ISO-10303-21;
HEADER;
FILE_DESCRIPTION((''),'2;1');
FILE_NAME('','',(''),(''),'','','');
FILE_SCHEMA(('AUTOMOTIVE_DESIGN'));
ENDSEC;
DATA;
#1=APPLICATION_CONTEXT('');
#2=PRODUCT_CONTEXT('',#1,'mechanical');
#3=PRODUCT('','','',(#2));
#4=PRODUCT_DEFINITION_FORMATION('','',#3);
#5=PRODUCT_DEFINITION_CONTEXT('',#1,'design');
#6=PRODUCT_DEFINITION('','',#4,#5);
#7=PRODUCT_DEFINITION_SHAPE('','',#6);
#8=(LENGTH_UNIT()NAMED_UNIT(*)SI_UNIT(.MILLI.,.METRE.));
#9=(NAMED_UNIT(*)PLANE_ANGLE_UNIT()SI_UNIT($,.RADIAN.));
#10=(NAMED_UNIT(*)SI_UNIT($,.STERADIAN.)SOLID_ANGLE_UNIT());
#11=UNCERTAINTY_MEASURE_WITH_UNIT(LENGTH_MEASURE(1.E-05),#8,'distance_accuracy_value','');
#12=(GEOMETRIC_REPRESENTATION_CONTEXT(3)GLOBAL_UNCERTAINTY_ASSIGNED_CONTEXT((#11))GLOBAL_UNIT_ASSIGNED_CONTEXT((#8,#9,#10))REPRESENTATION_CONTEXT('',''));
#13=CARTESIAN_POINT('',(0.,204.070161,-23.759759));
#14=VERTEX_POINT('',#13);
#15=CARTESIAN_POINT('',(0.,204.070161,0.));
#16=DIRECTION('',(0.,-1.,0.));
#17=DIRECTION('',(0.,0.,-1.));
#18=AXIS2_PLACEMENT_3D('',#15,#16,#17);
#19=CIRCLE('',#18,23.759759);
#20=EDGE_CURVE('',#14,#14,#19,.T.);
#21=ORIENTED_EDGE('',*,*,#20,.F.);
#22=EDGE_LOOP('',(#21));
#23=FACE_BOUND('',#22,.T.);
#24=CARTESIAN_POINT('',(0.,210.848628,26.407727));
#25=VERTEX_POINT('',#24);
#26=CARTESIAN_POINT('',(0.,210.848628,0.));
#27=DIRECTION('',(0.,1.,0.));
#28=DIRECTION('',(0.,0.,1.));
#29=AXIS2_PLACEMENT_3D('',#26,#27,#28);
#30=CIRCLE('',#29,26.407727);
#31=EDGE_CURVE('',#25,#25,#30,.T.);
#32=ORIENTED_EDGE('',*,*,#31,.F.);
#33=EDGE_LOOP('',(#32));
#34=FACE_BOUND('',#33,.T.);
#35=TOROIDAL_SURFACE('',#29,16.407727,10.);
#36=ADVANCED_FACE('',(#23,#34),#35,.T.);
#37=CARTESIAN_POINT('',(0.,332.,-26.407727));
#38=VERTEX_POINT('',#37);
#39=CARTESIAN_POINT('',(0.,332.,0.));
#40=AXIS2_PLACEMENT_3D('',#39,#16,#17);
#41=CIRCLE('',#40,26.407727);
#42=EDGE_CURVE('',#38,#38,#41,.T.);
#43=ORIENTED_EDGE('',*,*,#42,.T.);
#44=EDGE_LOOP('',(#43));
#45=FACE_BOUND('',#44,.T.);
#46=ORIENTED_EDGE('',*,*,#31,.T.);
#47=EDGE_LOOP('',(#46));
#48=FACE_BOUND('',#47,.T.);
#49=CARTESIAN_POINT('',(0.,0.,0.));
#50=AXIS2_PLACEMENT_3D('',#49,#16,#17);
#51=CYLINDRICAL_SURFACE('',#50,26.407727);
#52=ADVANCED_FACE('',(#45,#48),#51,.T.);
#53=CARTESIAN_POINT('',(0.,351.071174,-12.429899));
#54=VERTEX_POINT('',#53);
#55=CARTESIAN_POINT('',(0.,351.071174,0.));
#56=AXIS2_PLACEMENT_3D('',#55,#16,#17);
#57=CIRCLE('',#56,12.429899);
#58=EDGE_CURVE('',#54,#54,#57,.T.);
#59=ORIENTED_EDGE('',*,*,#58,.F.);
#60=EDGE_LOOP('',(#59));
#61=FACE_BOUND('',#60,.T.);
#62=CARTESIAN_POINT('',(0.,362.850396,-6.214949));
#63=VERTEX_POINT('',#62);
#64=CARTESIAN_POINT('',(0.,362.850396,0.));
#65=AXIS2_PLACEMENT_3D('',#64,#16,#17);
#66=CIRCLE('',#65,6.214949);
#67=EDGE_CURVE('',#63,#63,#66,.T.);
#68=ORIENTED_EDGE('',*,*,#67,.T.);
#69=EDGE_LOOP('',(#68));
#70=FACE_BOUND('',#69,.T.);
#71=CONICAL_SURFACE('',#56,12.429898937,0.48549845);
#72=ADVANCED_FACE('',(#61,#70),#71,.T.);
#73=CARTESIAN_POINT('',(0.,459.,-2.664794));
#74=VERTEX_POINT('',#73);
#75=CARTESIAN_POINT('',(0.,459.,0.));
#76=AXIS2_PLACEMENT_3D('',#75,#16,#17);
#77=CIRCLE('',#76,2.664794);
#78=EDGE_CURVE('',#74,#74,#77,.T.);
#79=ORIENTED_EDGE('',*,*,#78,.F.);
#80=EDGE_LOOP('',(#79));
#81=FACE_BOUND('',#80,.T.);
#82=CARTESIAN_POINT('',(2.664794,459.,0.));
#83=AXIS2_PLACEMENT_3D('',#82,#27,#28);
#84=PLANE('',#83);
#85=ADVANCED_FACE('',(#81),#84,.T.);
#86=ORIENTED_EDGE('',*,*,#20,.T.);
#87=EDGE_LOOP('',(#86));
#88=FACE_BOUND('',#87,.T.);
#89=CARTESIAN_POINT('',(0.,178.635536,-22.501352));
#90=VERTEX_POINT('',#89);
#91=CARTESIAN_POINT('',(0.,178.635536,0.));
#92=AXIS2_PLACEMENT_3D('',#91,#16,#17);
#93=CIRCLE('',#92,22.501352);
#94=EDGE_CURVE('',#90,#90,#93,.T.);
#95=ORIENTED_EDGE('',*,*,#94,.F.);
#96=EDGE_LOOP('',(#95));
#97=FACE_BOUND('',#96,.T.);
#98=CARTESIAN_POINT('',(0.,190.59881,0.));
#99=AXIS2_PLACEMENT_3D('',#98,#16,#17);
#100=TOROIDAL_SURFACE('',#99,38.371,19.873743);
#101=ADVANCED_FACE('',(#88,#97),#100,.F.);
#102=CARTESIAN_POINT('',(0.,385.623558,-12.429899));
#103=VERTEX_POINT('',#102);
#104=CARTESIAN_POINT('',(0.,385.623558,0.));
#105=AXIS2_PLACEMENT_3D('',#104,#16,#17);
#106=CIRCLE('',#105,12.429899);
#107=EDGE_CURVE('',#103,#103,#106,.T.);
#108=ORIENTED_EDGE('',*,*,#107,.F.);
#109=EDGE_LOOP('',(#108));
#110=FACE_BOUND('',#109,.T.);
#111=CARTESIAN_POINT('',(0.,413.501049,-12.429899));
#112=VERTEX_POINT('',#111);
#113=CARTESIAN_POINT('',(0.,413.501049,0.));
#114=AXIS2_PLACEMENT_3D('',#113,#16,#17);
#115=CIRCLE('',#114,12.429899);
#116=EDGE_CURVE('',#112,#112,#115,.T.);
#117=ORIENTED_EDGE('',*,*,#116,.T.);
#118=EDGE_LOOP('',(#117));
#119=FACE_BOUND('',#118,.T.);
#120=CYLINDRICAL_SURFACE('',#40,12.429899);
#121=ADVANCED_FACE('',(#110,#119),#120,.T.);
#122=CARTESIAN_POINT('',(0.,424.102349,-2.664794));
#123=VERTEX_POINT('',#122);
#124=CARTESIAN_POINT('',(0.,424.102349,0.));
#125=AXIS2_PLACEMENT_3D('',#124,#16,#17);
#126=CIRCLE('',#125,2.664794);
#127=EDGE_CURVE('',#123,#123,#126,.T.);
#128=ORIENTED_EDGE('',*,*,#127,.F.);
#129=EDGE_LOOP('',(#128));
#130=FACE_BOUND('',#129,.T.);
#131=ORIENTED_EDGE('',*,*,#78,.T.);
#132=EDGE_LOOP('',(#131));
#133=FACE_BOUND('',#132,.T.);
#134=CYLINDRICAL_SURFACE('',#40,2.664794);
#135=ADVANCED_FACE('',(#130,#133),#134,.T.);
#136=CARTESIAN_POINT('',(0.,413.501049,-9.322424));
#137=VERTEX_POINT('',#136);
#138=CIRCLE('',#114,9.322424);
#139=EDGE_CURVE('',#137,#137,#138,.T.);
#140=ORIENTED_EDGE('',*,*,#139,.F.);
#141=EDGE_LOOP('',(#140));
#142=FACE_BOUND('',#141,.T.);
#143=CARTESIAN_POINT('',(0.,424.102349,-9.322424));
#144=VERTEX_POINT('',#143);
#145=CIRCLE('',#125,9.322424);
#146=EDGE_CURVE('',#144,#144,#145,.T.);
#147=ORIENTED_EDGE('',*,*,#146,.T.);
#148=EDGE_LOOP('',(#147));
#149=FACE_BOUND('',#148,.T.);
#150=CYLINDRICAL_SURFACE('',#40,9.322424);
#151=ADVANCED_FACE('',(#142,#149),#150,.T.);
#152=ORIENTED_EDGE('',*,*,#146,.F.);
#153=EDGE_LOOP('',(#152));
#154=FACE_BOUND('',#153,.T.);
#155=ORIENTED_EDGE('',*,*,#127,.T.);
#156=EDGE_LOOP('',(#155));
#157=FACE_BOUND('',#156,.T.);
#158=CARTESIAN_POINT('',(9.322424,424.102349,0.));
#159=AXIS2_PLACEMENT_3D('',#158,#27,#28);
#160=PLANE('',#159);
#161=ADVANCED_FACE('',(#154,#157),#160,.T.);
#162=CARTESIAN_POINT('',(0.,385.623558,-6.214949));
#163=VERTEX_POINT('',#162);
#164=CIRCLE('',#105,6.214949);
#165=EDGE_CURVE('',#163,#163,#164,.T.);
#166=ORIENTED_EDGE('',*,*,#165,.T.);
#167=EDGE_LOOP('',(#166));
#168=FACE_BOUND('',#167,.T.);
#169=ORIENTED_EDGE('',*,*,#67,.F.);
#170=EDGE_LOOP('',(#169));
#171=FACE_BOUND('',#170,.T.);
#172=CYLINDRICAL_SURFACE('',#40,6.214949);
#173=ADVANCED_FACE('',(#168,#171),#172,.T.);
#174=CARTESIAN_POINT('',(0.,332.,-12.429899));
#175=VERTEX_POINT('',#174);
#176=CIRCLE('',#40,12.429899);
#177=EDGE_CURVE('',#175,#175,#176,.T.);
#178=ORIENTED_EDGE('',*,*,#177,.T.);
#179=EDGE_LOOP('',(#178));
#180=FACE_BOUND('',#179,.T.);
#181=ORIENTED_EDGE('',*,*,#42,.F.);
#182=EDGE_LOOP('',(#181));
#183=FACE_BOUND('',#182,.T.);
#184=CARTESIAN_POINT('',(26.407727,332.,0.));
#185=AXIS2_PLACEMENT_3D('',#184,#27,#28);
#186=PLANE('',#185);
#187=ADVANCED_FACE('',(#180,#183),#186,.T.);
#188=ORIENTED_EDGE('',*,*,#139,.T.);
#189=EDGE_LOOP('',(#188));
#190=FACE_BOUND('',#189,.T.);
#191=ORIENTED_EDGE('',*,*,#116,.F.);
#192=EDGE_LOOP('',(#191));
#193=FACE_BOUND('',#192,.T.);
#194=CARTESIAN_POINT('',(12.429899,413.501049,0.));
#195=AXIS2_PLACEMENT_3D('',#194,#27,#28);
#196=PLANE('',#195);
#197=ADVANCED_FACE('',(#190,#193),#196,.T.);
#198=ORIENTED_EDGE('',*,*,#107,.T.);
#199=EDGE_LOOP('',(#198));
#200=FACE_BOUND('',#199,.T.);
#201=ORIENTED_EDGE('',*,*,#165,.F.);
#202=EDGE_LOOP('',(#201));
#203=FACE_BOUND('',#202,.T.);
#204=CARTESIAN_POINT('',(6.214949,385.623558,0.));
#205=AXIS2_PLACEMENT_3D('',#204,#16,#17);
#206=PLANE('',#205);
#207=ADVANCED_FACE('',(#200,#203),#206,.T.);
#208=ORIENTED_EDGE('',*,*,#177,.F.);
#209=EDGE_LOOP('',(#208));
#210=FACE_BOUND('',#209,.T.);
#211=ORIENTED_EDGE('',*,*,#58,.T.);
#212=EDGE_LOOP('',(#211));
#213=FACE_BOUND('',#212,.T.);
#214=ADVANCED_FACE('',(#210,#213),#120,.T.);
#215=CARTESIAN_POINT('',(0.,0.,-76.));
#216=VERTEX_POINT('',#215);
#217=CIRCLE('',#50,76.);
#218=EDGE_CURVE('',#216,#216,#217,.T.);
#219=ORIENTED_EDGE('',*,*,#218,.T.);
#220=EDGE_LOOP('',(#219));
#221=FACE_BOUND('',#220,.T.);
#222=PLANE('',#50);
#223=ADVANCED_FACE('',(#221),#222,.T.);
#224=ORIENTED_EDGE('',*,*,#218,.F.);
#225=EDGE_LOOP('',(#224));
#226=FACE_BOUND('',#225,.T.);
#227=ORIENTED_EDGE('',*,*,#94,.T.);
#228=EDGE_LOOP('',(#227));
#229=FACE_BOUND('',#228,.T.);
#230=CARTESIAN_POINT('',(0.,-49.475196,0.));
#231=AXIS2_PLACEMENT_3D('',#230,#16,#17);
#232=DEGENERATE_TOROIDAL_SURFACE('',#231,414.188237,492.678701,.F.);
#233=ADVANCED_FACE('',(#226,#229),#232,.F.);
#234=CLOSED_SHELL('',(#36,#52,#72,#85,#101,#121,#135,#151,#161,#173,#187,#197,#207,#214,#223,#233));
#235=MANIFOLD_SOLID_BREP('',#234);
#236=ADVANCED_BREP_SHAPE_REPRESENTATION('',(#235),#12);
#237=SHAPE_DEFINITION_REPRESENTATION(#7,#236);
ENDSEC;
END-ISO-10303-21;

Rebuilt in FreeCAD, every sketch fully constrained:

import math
import FreeCAD as App
import Part
import Sketcher
from FreeCAD import Vector


def edges_at(feature, points):
    """Names of the edges that pass closest to the given points."""
    edges = feature.Shape.Edges
    near = lambda p: min(range(len(edges)), key=lambda i: edges[i].distToShape(Part.Vertex(*p))[0])
    return sorted({f"Edge{near(p) + 1}" for p in points})


def add_polygon(sketch, points):
    """Adds a closed chain of lines whose ends are joined by coincident constraints."""
    first, n = sketch.GeometryCount, len(points)
    for a, b in zip(points, points[1:] + points[:1]):
        sketch.addGeometry(Part.LineSegment(App.Vector(*a, 0), App.Vector(*b, 0)), False)
    for i in range(n):
        sketch.addConstraint(Sketcher.Constraint("Coincident", first + i, 2, first + (i + 1) % n, 1))

doc = App.newDocument("Part")
body = doc.addObject("PartDesign::Body", "Body")

sketch1 = body.newObject("Sketcher::SketchObject", "Sketch")
sketch1.AttachmentSupport = (doc.getObject("XY_Plane"), [""])
sketch1.MapMode = "FlatFace"
sketch1.addGeometry([
    Part.LineSegment(Vector(0, 0, 0), Vector(76, 0, 0)),
    Part.ArcOfCircle(Part.Circle(Vector(-414, -49, 0), Vector(0, 0, 1), 493), math.radians(6), math.radians(28)),
    Part.ArcOfCircle(Part.Circle(Vector(38, 191, 0), Vector(0, 0, 1), 20), math.radians(127), math.radians(217)),
    Part.LineSegment(Vector(26, 206, 0), Vector(26, 332, 0)),
    Part.LineSegment(Vector(26, 332, 0), Vector(0, 332, 0)),
    Part.LineSegment(Vector(0, 332, 0), Vector(0, 0, 0)),
], False)
sketch1.addConstraint([
    Sketcher.Constraint("Coincident", 0, 2, 1, 1),
    Sketcher.Constraint("Coincident", 1, 2, 2, 2),
    Sketcher.Constraint("Coincident", 2, 1, 3, 1),
    Sketcher.Constraint("Coincident", 3, 2, 4, 1),
    Sketcher.Constraint("Coincident", 4, 2, 5, 1),
    Sketcher.Constraint("Coincident", 5, 2, 0, 1),
    Sketcher.Constraint("Horizontal", 0),
    Sketcher.Constraint("Vertical", 3),
    Sketcher.Constraint("Horizontal", 4),
    Sketcher.Constraint("Vertical", 5),
    Sketcher.Constraint("Coincident", 5, 2, -1, 1),
    Sketcher.Constraint("DistanceX", 0, 1, 0, 2, 76.0),
    Sketcher.Constraint("DistanceY", 5, 2, 5, 1, 332.0),
    Sketcher.Constraint("Radius", 1, 492.678701),
    Sketcher.Constraint("DistanceX", -1, 1, 2, 3, 38.371),
    Sketcher.Constraint("Radius", 2, 19.873743),
    Sketcher.Constraint("DistanceY", 3, 1, 3, 2, 125.531542),
    Sketcher.Constraint("DistanceX", 4, 2, 4, 1, 26.407727),
    Sketcher.Constraint("DistanceX", -1, 1, 1, 2, 22.501352),
])
revolution = body.newObject("PartDesign::Revolution", "Revolution")
revolution.Profile = sketch1
revolution.ReferenceAxis = (sketch1, ["V_Axis"])
revolution.Angle = 360
doc.recompute()

fillet = body.newObject("PartDesign::Fillet", "Fillet")
fillet.Base = (revolution, edges_at(revolution, [(-26.408, 206.468, 0)]))
fillet.Radius = 10

sketch2 = body.newObject("Sketcher::SketchObject", "Sketch001")
sketch2.AttachmentSupport = (doc.getObject("XY_Plane"), [""])
sketch2.MapMode = "FlatFace"
add_polygon(sketch2, [(0, 459), (0, 332), (12.4, 332), (12.4, 351.1), (6.2, 362.9), (6.2, 385.6), (12.4, 385.6), (12.4, 413.5), (9.3, 413.5), (9.3, 424.1), (2.7, 424.1), (2.7, 459)])
sketch2.addConstraint([
    Sketcher.Constraint("Vertical", 0),
    Sketcher.Constraint("Horizontal", 1),
    Sketcher.Constraint("Vertical", 2),
    Sketcher.Constraint("Vertical", 4),
    Sketcher.Constraint("Horizontal", 5),
    Sketcher.Constraint("Vertical", 6),
    Sketcher.Constraint("Horizontal", 7),
    Sketcher.Constraint("Vertical", 8),
    Sketcher.Constraint("Horizontal", 9),
    Sketcher.Constraint("Vertical", 10),
    Sketcher.Constraint("Horizontal", 11),
    Sketcher.Constraint("PointOnObject", 0, 2, -2),
    Sketcher.Constraint("Vertical", 2, 2, 5, 2),
    Sketcher.Constraint("DistanceY", 0, 2, 0, 1, 127.0),
    Sketcher.Constraint("DistanceY", -1, 1, 0, 2, 332.0),
    Sketcher.Constraint("DistanceX", 1, 1, 1, 2, 12.429899),
    Sketcher.Constraint("DistanceY", 8, 1, 8, 2, 10.6013),
    Sketcher.Constraint("DistanceX", 5, 1, 5, 2, 6.214949),
    Sketcher.Constraint("DistanceX", 9, 2, 9, 1, 6.65763),
    Sketcher.Constraint("DistanceY", 4, 1, 4, 2, 22.773162),
    Sketcher.Constraint("DistanceY", 6, 1, 6, 2, 27.877491),
    Sketcher.Constraint("DistanceY", 10, 1, 10, 2, 34.897651),
    Sketcher.Constraint("DistanceX", 7, 2, 7, 1, 3.107475),
    Sketcher.Constraint("DistanceY", 2, 1, 2, 2, 19.071174),
])
revolution2 = body.newObject("PartDesign::Revolution", "Revolution001")
revolution2.Profile = sketch2
revolution2.ReferenceAxis = (sketch2, ["V_Axis"])
revolution2.Angle = 360

doc.recompute()
